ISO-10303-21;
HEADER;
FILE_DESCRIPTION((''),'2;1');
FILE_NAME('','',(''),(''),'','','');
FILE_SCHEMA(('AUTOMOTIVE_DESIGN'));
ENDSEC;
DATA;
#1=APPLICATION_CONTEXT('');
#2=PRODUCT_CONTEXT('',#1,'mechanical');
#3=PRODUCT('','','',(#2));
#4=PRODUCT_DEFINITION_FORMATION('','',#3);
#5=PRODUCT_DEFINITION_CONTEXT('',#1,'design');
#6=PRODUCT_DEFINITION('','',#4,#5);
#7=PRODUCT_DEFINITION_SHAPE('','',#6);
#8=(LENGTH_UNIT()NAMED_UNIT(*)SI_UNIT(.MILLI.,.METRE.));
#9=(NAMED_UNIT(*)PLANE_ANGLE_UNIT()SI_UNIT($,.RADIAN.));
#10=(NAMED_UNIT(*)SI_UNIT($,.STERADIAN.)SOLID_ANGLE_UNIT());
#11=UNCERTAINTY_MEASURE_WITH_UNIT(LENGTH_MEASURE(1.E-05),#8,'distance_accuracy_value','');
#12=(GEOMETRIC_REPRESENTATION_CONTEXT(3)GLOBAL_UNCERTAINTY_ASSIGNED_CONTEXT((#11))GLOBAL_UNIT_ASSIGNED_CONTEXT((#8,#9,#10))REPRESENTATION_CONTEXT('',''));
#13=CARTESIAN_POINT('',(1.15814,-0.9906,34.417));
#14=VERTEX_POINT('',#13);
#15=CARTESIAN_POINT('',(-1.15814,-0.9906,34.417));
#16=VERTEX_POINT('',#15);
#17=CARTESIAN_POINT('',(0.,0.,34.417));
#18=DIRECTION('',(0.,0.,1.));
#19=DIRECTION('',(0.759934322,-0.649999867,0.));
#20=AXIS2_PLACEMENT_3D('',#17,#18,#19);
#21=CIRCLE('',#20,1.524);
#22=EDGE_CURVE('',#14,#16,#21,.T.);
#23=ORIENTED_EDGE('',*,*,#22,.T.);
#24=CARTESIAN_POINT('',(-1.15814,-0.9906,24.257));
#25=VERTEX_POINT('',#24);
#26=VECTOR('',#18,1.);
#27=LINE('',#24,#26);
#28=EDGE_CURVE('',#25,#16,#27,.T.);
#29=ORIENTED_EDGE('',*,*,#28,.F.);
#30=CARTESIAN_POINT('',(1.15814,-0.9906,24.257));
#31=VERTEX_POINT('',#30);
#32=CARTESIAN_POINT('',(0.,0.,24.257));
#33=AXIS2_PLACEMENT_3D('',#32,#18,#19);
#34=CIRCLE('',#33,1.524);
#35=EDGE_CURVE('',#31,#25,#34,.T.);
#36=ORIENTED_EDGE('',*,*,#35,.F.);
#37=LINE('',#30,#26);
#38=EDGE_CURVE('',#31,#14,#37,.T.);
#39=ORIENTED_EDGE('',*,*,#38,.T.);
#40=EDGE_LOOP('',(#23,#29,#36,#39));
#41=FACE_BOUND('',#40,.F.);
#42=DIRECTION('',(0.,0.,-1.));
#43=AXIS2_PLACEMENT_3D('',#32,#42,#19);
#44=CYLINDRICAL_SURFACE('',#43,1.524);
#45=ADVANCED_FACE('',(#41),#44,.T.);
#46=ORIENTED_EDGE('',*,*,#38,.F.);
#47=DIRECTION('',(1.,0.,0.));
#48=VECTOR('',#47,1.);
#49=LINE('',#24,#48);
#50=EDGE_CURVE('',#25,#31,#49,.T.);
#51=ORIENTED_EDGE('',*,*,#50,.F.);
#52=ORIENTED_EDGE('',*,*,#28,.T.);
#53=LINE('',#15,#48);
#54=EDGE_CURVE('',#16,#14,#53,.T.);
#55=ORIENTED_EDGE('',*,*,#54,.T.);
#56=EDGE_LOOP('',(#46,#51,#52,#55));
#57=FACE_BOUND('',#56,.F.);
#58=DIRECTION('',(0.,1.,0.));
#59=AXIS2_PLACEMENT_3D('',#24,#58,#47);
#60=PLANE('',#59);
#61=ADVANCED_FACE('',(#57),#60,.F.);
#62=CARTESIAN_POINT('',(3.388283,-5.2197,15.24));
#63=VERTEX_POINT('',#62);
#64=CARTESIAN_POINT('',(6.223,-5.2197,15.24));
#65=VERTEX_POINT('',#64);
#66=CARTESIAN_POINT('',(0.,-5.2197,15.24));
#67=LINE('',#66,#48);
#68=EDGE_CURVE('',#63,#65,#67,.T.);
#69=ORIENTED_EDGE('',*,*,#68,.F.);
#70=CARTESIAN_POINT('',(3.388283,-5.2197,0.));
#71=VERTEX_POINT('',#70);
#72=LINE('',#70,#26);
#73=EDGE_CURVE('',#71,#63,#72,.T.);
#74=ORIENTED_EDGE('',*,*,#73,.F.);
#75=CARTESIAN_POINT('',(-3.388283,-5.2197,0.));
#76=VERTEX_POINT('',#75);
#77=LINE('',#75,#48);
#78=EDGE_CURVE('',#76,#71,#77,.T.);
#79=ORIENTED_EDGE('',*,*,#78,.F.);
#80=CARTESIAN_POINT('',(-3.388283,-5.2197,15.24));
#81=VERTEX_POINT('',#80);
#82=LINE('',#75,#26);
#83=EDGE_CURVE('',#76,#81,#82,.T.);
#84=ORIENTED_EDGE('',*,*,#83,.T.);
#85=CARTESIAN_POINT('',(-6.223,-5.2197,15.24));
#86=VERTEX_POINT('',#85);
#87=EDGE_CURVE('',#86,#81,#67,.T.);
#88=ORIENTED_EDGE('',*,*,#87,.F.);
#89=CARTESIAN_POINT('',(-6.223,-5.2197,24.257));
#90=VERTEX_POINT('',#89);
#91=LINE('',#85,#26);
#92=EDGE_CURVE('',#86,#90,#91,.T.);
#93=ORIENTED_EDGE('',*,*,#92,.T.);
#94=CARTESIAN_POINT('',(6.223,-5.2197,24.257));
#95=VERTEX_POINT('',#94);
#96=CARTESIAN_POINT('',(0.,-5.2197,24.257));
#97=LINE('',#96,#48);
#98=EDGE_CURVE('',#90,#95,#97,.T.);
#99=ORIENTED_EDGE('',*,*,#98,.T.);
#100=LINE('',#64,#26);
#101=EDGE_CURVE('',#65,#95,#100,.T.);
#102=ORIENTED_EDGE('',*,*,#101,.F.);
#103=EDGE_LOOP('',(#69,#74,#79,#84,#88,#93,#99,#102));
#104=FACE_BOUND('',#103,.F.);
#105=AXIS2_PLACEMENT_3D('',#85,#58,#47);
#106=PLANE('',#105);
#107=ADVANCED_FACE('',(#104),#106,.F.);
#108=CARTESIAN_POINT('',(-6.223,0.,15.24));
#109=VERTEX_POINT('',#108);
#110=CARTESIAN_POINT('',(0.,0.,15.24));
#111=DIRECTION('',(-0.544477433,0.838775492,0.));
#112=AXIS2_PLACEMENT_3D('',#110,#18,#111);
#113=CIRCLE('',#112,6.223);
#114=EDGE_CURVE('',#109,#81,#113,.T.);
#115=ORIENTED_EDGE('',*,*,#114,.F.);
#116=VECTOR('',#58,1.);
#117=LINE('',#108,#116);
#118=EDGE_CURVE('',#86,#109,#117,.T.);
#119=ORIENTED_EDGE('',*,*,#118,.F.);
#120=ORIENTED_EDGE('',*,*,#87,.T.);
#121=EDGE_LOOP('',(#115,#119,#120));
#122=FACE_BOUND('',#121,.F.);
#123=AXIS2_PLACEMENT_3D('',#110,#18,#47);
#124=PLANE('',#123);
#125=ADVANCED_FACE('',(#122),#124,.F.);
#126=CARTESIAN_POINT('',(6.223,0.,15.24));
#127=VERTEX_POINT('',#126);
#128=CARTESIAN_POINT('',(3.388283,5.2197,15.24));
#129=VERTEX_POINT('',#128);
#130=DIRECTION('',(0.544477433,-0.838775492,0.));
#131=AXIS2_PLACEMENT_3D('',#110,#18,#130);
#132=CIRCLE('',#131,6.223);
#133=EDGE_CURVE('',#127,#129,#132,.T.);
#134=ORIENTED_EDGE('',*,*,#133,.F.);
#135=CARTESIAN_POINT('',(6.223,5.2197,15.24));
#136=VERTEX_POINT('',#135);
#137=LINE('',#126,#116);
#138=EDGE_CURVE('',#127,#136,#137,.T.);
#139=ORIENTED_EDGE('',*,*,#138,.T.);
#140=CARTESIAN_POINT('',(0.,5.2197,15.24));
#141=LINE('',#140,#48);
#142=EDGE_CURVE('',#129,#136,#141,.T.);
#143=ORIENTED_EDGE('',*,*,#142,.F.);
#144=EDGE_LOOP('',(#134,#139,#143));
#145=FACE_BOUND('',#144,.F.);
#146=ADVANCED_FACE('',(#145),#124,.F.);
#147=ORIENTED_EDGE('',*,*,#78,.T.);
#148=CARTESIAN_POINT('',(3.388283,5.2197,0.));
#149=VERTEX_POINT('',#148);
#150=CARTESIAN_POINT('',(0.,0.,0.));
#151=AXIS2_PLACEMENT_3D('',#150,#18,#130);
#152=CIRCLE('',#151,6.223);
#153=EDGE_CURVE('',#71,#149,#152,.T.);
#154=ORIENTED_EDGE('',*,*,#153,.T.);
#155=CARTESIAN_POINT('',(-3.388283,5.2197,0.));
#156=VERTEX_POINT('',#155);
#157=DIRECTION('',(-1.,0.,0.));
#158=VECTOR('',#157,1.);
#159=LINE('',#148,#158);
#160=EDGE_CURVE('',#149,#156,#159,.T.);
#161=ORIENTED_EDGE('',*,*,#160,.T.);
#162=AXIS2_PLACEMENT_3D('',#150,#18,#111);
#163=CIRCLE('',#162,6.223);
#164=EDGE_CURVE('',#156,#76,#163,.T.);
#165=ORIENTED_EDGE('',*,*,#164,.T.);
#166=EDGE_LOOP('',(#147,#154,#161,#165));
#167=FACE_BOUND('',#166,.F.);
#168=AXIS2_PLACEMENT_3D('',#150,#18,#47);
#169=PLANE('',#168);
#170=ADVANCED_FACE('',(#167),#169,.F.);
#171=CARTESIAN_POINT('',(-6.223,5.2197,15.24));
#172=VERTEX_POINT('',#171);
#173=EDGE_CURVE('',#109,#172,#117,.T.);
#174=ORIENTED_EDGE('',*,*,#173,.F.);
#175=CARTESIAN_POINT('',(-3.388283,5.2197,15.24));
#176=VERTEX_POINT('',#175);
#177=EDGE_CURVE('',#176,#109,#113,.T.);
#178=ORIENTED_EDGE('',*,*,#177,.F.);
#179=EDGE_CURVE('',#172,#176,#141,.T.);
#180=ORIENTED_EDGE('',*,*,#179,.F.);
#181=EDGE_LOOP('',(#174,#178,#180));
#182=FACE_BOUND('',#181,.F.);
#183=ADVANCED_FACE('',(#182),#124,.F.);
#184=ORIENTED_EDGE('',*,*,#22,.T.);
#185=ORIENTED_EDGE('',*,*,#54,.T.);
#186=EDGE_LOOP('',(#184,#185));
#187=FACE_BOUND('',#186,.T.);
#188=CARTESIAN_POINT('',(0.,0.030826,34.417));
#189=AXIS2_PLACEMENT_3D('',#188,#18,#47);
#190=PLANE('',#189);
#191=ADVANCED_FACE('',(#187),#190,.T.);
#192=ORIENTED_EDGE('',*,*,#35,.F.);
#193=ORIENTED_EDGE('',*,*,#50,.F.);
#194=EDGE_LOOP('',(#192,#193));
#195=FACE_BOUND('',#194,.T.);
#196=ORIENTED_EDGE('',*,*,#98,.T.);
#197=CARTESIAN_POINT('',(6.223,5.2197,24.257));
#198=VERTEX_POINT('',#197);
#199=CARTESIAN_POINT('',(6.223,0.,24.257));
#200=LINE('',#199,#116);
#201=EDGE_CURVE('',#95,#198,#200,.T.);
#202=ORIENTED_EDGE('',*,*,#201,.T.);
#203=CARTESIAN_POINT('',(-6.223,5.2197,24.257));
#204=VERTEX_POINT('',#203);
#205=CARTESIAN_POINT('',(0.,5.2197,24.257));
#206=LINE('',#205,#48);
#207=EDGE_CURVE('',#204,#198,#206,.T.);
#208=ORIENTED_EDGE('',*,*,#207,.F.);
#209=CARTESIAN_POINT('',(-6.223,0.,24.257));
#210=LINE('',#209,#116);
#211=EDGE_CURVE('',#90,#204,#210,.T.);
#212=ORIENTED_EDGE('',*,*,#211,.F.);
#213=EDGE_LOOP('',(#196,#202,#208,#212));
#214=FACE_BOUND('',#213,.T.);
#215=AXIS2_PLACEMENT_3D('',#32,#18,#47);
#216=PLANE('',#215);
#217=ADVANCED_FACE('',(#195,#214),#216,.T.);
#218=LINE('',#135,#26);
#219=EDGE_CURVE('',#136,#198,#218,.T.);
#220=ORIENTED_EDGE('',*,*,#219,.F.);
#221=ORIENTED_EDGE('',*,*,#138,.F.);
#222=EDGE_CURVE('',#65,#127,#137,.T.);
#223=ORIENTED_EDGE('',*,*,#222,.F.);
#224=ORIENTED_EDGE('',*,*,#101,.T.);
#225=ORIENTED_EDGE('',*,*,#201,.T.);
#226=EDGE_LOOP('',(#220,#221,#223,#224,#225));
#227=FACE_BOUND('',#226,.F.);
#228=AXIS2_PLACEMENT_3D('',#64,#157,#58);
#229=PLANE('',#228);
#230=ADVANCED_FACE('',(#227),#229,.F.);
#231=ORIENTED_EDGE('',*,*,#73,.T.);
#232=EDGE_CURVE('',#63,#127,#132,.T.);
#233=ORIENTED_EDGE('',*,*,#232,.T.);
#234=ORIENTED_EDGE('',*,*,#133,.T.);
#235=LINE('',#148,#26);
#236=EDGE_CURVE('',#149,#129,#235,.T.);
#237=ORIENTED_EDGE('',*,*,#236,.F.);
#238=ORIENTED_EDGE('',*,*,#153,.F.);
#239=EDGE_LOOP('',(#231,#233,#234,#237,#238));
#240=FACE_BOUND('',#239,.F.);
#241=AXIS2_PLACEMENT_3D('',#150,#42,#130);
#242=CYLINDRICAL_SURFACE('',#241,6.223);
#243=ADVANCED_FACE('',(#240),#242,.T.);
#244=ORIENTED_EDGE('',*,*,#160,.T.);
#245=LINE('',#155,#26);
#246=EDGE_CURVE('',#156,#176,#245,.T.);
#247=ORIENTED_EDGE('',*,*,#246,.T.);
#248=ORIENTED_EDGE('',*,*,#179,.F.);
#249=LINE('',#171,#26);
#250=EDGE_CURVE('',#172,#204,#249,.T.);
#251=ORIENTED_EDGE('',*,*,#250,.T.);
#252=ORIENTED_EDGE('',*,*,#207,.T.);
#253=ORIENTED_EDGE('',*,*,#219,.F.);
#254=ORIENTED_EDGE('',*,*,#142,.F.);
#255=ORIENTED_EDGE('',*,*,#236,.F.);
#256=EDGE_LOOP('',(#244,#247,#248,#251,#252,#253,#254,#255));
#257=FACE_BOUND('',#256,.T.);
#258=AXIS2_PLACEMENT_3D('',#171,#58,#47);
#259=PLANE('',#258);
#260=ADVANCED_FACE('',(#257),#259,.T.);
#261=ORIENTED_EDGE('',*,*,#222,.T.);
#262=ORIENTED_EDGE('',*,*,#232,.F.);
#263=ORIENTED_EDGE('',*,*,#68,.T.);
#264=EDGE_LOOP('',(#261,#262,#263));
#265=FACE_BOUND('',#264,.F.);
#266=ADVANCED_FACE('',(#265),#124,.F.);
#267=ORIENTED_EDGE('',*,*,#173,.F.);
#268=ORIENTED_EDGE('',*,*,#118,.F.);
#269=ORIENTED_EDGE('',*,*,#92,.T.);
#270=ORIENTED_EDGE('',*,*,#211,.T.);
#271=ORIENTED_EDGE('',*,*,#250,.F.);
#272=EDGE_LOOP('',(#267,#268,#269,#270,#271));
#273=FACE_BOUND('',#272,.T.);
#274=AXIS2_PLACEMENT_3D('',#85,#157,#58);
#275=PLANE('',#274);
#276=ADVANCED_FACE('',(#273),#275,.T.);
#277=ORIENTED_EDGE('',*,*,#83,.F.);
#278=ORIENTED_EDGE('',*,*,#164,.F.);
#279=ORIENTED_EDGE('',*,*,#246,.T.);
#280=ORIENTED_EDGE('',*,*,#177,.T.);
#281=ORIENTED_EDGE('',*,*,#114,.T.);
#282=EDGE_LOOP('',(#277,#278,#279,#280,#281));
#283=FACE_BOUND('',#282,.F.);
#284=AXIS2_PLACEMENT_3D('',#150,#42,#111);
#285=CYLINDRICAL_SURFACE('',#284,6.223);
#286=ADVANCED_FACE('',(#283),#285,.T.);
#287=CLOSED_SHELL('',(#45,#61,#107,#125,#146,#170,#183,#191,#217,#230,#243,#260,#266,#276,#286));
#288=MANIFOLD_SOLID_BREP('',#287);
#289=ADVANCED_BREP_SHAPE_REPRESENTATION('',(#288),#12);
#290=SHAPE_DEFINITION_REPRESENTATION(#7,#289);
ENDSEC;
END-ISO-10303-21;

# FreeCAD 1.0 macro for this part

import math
import FreeCAD as App
import Part
import Sketcher
Q = App.Units.Quantity

doc = App.newDocument("Part")
body = doc.addObject("PartDesign::Body", "Body")

# Sketch on XY plane
sketch1 = body.newObject("Sketcher::SketchObject", "Sketch")
sketch1.AttachmentSupport = (doc.getObject("XY_Plane"), [""])
sketch1.MapMode = "FlatFace"
sketch1.addGeometry([
    Part.LineSegment(App.Vector(3.388283, 5.2197, 0), App.Vector(-3.388283, 5.2197, 0)),
    Part.ArcOfCircle(Part.Circle(App.Vector(0, 0, 0), App.Vector(0, 0, 1), 6.223), math.radians(122.98896), math.radians(237.01104)),
    Part.LineSegment(App.Vector(-3.388283, -5.2197, 0), App.Vector(3.388283, -5.2197, 0)),
    Part.ArcOfCircle(Part.Circle(App.Vector(0, 0, 0), App.Vector(0, 0, 1), 6.223), math.radians(-57.01104), math.radians(57.01104)),
], False)
sketch1.addConstraint([
    Sketcher.Constraint("Coincident", 0, 2, 1, 1),
    Sketcher.Constraint("Coincident", 1, 2, 2, 1),
    Sketcher.Constraint("Coincident", 2, 2, 3, 1),
    Sketcher.Constraint("Coincident", 3, 2, 0, 1),
    Sketcher.Constraint("Horizontal", 0),
    Sketcher.Constraint("Horizontal", 2),
    Sketcher.Constraint("Coincident", 1, 3, -1, 1),
    Sketcher.Constraint("Coincident", 3, 3, -1, 1),
    Sketcher.Constraint("Equal", 1, 3),
    Sketcher.Constraint("Vertical", 0, 2, 1, 2),
    Sketcher.Constraint("Radius", 1, Q("0.245 in")),
    Sketcher.Constraint("DistanceY", 1, 2, 0, 2, Q("0.411 in")),
])
pad1 = body.newObject("PartDesign::Pad", "Pad")
pad1.Profile = sketch1
pad1.Length = Q("0.6 in")

# Sketch on XY plane
sketch2 = body.newObject("Sketcher::SketchObject", "Sketch001")
sketch2.AttachmentSupport = (doc.getObject("XY_Plane"), [""])
sketch2.MapMode = "FlatFace"
sketch2.AttachmentOffset = App.Placement(App.Vector(0, 0, 0.6 * 25.4), App.Rotation())
sketch2.addGeometry([
    Part.LineSegment(App.Vector(-6.223, 5.2197, 0), App.Vector(-6.223, -5.2197, 0)),
    Part.LineSegment(App.Vector(-6.223, -5.2197, 0), App.Vector(6.223, -5.2197, 0)),
    Part.LineSegment(App.Vector(6.223, -5.2197, 0), App.Vector(6.223, 5.2197, 0)),
    Part.LineSegment(App.Vector(6.223, 5.2197, 0), App.Vector(-6.223, 5.2197, 0)),
], False)
sketch2.addConstraint([
    Sketcher.Constraint("Coincident", 0, 2, 1, 1),
    Sketcher.Constraint("Coincident", 1, 2, 2, 1),
    Sketcher.Constraint("Coincident", 2, 2, 3, 1),
    Sketcher.Constraint("Coincident", 3, 2, 0, 1),
    Sketcher.Constraint("Vertical", 0),
    Sketcher.Constraint("Horizontal", 1),
    Sketcher.Constraint("Vertical", 2),
    Sketcher.Constraint("Horizontal", 3),
    Sketcher.Constraint("Symmetric", 0, 2, 2, 2, -1, 1),
    Sketcher.Constraint("DistanceX", 1, 1, 1, 2, Q("0.49 in")),
    Sketcher.Constraint("DistanceY", 0, 2, 0, 1, Q("0.411 in")),
])
pad2 = body.newObject("PartDesign::Pad", "Pad001")
pad2.Profile = sketch2
pad2.Length = Q("0.355 in")

# Sketch on XY plane
sketch3 = body.newObject("Sketcher::SketchObject", "Sketch002")
sketch3.AttachmentSupport = (doc.getObject("XY_Plane"), [""])
sketch3.MapMode = "FlatFace"
sketch3.AttachmentOffset = App.Placement(App.Vector(0, 0, 0.955 * 25.4), App.Rotation())
sketch3.addGeometry([
    Part.LineSegment(App.Vector(-1.15814, -0.9906, 0), App.Vector(1.15814, -0.9906, 0)),
    Part.ArcOfCircle(Part.Circle(App.Vector(0, 0, 0), App.Vector(0, 0, 1), 1.524), math.radians(-40.541592), math.radians(220.541592)),
], False)
sketch3.addConstraint([
    Sketcher.Constraint("Coincident", 0, 1, 1, 2),
    Sketcher.Constraint("Coincident", 1, 1, 0, 2),
    Sketcher.Constraint("Horizontal", 0),
    Sketcher.Constraint("Coincident", 1, 3, -1, 1),
    Sketcher.Constraint("Radius", 1, Q("0.06 in")),
    Sketcher.Constraint("DistanceY", 0, 1, -1, 1, Q("0.039 in")),
])
pad3 = body.newObject("PartDesign::Pad", "Pad002")
pad3.Profile = sketch3
pad3.Length = Q("0.4 in")

doc.recompute()
